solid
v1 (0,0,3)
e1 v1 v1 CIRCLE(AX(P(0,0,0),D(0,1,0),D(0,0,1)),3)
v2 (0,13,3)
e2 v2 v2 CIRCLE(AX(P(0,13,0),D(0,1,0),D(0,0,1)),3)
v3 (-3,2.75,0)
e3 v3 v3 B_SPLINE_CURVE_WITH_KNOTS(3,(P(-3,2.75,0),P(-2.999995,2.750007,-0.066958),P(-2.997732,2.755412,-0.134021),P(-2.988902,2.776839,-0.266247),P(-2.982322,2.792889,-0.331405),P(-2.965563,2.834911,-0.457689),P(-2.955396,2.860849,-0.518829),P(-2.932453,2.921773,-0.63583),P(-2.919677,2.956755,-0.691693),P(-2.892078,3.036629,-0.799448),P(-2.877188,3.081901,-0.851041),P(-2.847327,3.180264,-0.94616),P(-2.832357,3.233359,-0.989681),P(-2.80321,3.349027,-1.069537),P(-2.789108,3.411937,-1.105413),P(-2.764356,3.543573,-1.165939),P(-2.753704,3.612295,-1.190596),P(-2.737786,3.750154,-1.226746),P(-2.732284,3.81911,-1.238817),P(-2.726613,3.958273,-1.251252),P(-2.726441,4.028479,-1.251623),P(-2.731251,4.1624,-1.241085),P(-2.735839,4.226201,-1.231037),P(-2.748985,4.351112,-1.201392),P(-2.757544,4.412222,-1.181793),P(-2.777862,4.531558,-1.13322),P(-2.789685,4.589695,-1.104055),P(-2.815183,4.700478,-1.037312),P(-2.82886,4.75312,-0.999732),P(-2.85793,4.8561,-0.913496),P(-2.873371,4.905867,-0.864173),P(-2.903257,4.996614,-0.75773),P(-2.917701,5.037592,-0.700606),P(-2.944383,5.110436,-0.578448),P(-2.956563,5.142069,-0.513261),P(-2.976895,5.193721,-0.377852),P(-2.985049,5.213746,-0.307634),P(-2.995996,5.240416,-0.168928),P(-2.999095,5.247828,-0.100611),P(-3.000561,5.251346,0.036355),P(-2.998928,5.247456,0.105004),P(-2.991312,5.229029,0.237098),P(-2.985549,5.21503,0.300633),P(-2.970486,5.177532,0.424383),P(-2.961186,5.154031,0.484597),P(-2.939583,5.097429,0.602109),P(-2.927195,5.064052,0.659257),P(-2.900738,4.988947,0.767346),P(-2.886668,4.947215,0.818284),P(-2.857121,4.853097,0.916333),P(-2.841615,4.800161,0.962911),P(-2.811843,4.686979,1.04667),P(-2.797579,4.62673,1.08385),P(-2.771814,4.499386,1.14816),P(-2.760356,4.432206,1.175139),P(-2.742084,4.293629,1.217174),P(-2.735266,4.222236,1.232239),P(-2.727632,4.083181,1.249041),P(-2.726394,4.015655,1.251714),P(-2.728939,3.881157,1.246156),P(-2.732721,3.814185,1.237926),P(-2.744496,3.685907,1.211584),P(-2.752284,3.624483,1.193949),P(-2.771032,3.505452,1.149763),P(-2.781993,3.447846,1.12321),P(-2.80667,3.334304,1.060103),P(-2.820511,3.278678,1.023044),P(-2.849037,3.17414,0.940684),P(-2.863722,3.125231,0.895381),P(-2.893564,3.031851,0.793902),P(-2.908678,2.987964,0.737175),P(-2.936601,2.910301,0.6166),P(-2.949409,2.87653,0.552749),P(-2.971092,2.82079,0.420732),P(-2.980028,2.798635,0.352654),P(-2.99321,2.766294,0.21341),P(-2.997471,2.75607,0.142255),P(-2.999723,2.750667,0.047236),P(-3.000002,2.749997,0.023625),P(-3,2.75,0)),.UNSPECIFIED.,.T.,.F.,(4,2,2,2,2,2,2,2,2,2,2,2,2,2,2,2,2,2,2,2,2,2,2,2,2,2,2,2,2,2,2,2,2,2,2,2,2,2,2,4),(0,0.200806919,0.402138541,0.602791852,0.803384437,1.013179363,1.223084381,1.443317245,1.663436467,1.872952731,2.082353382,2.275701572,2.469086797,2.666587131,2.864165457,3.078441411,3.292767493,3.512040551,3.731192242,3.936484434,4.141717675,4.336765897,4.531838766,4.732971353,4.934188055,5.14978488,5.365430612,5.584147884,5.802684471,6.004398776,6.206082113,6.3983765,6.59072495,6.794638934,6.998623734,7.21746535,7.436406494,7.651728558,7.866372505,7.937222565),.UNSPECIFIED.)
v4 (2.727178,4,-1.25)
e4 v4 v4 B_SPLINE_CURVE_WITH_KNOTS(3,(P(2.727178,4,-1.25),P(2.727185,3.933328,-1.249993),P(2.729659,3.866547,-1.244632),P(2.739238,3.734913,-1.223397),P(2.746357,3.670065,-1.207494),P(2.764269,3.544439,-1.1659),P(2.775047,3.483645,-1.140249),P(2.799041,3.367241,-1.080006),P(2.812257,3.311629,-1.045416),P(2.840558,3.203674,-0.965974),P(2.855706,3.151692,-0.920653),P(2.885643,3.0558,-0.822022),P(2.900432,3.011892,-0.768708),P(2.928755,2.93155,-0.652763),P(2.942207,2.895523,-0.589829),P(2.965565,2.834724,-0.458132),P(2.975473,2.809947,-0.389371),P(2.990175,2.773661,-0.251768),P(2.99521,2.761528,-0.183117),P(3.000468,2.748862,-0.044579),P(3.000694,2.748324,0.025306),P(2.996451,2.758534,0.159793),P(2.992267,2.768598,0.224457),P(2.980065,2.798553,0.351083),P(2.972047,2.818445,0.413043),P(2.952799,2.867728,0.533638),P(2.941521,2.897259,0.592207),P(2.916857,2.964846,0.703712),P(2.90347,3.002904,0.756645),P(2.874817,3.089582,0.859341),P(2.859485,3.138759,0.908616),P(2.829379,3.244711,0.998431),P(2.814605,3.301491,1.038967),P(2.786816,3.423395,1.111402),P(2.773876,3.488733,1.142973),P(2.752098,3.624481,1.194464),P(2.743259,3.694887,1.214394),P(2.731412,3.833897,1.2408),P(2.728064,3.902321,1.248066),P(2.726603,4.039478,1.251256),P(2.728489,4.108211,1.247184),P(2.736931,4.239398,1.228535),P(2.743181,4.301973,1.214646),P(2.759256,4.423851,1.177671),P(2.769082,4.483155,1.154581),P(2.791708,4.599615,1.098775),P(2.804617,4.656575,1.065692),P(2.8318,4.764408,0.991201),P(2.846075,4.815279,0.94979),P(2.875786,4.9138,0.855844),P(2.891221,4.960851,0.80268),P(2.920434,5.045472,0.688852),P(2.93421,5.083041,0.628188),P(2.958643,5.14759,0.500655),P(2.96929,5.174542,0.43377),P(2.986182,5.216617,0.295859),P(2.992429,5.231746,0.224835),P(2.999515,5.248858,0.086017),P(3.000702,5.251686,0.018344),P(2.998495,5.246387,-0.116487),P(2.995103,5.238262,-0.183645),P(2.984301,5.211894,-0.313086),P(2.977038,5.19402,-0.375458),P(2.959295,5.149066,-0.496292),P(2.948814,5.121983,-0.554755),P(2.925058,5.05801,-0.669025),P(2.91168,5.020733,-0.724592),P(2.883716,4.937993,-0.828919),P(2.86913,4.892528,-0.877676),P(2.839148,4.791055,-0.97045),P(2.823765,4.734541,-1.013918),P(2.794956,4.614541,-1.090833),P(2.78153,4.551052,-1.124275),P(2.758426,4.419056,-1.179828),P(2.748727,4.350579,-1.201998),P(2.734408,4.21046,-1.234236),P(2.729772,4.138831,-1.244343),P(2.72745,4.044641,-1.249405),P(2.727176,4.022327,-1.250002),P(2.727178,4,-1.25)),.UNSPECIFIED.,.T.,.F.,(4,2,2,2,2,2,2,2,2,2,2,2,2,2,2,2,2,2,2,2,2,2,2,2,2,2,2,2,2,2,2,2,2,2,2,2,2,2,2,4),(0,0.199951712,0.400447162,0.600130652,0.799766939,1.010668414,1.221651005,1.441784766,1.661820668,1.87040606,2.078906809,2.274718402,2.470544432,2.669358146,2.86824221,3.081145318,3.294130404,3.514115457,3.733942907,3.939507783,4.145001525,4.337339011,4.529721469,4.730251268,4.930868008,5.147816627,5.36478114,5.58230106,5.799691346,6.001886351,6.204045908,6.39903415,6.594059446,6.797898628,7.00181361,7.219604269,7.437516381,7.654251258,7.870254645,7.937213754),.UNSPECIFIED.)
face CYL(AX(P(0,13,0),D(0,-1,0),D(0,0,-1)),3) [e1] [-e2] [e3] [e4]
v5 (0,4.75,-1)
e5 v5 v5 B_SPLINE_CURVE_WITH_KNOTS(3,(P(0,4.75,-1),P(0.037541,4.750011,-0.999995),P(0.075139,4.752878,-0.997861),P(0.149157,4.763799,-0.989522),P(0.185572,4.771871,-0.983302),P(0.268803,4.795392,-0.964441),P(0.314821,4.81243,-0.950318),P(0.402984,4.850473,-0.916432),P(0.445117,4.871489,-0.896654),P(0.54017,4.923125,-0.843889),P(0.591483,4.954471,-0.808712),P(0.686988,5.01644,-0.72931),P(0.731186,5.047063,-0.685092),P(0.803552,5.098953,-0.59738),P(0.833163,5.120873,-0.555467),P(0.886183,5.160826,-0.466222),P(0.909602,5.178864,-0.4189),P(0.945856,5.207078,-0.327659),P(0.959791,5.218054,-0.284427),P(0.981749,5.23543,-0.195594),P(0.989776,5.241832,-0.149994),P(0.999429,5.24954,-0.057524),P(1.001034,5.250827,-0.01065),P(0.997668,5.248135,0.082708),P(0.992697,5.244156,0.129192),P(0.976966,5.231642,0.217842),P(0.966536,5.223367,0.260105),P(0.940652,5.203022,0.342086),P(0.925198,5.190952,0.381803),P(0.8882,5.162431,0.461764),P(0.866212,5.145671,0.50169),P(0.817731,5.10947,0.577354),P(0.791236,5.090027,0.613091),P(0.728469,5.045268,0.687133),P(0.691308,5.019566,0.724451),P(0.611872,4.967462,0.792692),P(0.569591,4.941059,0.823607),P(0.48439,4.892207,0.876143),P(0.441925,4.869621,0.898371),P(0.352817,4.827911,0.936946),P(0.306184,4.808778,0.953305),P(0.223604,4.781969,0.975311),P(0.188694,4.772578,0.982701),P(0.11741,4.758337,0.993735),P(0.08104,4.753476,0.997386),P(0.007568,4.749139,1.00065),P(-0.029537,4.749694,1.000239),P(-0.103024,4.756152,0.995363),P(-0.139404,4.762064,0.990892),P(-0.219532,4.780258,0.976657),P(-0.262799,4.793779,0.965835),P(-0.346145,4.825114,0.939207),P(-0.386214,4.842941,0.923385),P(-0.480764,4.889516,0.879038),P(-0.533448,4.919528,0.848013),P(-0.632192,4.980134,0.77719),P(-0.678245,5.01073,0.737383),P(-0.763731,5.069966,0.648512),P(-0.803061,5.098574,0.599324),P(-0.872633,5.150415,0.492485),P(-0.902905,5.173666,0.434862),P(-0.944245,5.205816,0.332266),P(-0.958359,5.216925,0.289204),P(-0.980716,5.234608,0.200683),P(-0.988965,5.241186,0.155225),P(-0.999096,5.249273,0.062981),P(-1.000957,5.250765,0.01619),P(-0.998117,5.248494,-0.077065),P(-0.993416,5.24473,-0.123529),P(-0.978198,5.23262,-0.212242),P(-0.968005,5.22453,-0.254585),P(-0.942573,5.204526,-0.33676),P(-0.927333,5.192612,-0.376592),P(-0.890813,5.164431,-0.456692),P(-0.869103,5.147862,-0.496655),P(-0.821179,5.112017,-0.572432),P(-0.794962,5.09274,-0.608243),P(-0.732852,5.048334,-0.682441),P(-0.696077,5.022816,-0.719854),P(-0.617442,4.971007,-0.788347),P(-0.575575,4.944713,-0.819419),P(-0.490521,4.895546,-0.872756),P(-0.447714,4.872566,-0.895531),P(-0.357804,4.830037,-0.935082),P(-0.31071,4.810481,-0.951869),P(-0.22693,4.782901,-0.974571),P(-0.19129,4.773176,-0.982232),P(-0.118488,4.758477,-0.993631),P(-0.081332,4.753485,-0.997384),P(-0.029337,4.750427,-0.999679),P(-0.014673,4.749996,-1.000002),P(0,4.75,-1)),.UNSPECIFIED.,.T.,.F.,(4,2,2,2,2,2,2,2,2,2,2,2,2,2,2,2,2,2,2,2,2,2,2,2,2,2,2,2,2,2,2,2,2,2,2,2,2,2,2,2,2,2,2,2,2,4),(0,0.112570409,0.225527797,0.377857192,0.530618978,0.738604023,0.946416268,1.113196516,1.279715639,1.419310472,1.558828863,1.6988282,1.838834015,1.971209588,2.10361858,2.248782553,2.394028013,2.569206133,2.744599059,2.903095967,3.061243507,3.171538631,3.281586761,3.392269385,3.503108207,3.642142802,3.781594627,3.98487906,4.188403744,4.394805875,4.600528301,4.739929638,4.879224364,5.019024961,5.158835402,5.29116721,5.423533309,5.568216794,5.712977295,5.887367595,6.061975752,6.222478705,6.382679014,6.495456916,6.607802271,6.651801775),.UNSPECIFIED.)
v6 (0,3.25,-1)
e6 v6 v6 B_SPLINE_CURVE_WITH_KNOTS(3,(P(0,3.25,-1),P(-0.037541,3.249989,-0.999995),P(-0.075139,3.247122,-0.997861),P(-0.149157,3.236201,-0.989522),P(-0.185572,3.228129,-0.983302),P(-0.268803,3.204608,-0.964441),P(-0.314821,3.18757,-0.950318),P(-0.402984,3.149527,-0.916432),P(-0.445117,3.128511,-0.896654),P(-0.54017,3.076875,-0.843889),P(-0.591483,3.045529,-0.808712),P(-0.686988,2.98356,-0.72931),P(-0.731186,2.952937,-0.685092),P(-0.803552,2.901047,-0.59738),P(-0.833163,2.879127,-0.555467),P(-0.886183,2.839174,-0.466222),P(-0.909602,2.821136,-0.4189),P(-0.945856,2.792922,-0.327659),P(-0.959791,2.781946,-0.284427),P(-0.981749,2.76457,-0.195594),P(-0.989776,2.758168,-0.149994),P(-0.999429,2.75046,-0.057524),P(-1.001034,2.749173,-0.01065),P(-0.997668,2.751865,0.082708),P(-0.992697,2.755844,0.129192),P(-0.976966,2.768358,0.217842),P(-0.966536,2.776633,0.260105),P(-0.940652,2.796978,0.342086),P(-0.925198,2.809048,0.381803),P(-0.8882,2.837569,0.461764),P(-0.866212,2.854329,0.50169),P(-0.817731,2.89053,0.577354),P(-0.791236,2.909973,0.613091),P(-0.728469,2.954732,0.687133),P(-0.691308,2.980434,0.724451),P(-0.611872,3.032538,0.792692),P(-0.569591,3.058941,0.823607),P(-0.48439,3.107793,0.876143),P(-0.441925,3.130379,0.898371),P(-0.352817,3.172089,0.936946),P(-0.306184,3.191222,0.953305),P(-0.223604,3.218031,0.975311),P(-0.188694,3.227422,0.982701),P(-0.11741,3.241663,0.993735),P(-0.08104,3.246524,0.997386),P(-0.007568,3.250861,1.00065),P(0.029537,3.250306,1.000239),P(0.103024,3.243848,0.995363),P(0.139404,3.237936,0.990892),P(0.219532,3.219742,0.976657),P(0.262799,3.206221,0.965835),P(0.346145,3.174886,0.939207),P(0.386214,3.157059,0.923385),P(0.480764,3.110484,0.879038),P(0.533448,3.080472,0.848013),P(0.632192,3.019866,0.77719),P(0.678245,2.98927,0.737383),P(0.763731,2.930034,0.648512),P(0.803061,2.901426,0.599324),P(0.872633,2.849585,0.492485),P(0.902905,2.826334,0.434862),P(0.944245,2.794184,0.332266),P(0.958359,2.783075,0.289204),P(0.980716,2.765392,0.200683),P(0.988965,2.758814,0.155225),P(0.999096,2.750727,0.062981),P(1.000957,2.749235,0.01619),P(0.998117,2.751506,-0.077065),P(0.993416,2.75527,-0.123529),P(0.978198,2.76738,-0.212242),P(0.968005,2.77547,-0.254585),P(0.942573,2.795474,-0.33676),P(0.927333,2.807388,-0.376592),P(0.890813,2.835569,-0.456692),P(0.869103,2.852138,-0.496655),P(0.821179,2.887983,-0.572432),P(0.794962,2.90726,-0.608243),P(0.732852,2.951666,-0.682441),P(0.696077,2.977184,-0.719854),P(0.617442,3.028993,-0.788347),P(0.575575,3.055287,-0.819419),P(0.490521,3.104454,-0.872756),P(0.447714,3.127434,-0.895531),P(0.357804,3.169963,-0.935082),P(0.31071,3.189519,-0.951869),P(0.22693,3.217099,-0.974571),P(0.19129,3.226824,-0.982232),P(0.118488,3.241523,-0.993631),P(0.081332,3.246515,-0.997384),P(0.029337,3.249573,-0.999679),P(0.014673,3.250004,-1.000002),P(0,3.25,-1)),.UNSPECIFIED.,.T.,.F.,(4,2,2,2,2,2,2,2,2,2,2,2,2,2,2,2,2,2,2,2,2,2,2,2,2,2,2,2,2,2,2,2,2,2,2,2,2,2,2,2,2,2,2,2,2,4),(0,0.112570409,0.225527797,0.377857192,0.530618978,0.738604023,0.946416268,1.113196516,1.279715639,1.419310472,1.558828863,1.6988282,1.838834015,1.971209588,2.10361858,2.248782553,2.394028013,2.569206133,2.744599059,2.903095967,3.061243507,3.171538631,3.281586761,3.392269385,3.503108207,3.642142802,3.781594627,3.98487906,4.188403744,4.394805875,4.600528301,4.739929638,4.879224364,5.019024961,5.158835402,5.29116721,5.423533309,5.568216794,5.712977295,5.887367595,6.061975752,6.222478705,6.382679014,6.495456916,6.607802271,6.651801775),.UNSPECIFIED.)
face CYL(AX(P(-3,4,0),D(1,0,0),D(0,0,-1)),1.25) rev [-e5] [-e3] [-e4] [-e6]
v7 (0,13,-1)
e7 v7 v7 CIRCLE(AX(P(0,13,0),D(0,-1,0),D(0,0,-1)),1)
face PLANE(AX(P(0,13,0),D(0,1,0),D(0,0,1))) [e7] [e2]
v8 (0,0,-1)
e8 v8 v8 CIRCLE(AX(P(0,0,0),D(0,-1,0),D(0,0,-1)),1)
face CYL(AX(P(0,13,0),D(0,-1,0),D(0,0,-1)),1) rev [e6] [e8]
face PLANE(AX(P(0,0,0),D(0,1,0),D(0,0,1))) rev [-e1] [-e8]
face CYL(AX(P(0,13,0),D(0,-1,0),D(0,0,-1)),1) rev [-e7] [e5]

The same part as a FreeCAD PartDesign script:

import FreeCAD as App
import Part
import Sketcher

doc = App.newDocument("Part")
params = doc.addObject("Spreadsheet::Sheet", "Params")
for row, (alias, value) in enumerate([
    ("sketch1_diameter", "6 mm"),
    ("pad1_length", "13 mm"),
    ("sketch2_diameter", "2 mm"),
    ("sketch3_diameter", "2.5 mm"),
], start=1):
    params.set(f"A{row}", alias)
    params.set(f"B{row}", "=" + value)
    params.setAlias(f"B{row}", alias)

body = doc.addObject("PartDesign::Body", "Body")

# Sketch on XZ plane
sketch1 = doc.addObject("Sketcher::SketchObject", "Sketch")
body.addObject(sketch1)
sketch1.AttachmentSupport = (doc.XZ_Plane, [""])
sketch1.MapMode = "FlatFace"
sketch1.addGeometry(Part.Circle(App.Vector(0, 0, 0), App.Vector(0, 0, 1), 3), False)
sketch1.addConstraint(Sketcher.Constraint("Coincident", 0, 3, -1, 1))
sketch1.addConstraint(Sketcher.Constraint("Diameter", 0, 6.0))
sketch1.setExpression("Constraints[1]", "Params.sketch1_diameter")
pad1 = doc.addObject("PartDesign::Pad", "Pad")
body.addObject(pad1)
pad1.Profile = sketch1
pad1.setExpression("Length", "Params.pad1_length")
pad1.Reversed = True

# Sketch on XZ plane
sketch2 = doc.addObject("Sketcher::SketchObject", "Sketch001")
body.addObject(sketch2)
sketch2.AttachmentSupport = (doc.XZ_Plane, [""])
sketch2.MapMode = "FlatFace"
sketch2.addGeometry(Part.Circle(App.Vector(0, 0, 0), App.Vector(0, 0, 1), 1), False)
sketch2.addConstraint(Sketcher.Constraint("Coincident", 0, 3, -1, 1))
sketch2.addConstraint(Sketcher.Constraint("Diameter", 0, 2.0))
sketch2.setExpression("Constraints[1]", "Params.sketch2_diameter")
pocket1 = doc.addObject("PartDesign::Pocket", "Pocket")
body.addObject(pocket1)
pocket1.Profile = sketch2
pocket1.Type = "ThroughAll"

# Sketch on YZ plane
sketch3 = doc.addObject("Sketcher::SketchObject", "Sketch002")
body.addObject(sketch3)
sketch3.AttachmentSupport = (doc.YZ_Plane, [""])
sketch3.MapMode = "FlatFace"
sketch3.addGeometry(Part.Circle(App.Vector(4, 0, 0), App.Vector(0, 0, 1), 1.25), False)
sketch3.addConstraint(Sketcher.Constraint("PointOnObject", 0, 3, -1))
sketch3.addConstraint(Sketcher.Constraint("Diameter", 0, 2.5))
sketch3.addConstraint(Sketcher.Constraint("DistanceX", -1, 1, 0, 3, 4.0))
sketch3.setExpression("Constraints[1]", "Params.sketch3_diameter")
pocket2 = doc.addObject("PartDesign::Pocket", "Pocket001")
body.addObject(pocket2)
pocket2.Profile = sketch3
pocket2.Type = "ThroughAll"
pocket2.Midplane = True

doc.recompute()
